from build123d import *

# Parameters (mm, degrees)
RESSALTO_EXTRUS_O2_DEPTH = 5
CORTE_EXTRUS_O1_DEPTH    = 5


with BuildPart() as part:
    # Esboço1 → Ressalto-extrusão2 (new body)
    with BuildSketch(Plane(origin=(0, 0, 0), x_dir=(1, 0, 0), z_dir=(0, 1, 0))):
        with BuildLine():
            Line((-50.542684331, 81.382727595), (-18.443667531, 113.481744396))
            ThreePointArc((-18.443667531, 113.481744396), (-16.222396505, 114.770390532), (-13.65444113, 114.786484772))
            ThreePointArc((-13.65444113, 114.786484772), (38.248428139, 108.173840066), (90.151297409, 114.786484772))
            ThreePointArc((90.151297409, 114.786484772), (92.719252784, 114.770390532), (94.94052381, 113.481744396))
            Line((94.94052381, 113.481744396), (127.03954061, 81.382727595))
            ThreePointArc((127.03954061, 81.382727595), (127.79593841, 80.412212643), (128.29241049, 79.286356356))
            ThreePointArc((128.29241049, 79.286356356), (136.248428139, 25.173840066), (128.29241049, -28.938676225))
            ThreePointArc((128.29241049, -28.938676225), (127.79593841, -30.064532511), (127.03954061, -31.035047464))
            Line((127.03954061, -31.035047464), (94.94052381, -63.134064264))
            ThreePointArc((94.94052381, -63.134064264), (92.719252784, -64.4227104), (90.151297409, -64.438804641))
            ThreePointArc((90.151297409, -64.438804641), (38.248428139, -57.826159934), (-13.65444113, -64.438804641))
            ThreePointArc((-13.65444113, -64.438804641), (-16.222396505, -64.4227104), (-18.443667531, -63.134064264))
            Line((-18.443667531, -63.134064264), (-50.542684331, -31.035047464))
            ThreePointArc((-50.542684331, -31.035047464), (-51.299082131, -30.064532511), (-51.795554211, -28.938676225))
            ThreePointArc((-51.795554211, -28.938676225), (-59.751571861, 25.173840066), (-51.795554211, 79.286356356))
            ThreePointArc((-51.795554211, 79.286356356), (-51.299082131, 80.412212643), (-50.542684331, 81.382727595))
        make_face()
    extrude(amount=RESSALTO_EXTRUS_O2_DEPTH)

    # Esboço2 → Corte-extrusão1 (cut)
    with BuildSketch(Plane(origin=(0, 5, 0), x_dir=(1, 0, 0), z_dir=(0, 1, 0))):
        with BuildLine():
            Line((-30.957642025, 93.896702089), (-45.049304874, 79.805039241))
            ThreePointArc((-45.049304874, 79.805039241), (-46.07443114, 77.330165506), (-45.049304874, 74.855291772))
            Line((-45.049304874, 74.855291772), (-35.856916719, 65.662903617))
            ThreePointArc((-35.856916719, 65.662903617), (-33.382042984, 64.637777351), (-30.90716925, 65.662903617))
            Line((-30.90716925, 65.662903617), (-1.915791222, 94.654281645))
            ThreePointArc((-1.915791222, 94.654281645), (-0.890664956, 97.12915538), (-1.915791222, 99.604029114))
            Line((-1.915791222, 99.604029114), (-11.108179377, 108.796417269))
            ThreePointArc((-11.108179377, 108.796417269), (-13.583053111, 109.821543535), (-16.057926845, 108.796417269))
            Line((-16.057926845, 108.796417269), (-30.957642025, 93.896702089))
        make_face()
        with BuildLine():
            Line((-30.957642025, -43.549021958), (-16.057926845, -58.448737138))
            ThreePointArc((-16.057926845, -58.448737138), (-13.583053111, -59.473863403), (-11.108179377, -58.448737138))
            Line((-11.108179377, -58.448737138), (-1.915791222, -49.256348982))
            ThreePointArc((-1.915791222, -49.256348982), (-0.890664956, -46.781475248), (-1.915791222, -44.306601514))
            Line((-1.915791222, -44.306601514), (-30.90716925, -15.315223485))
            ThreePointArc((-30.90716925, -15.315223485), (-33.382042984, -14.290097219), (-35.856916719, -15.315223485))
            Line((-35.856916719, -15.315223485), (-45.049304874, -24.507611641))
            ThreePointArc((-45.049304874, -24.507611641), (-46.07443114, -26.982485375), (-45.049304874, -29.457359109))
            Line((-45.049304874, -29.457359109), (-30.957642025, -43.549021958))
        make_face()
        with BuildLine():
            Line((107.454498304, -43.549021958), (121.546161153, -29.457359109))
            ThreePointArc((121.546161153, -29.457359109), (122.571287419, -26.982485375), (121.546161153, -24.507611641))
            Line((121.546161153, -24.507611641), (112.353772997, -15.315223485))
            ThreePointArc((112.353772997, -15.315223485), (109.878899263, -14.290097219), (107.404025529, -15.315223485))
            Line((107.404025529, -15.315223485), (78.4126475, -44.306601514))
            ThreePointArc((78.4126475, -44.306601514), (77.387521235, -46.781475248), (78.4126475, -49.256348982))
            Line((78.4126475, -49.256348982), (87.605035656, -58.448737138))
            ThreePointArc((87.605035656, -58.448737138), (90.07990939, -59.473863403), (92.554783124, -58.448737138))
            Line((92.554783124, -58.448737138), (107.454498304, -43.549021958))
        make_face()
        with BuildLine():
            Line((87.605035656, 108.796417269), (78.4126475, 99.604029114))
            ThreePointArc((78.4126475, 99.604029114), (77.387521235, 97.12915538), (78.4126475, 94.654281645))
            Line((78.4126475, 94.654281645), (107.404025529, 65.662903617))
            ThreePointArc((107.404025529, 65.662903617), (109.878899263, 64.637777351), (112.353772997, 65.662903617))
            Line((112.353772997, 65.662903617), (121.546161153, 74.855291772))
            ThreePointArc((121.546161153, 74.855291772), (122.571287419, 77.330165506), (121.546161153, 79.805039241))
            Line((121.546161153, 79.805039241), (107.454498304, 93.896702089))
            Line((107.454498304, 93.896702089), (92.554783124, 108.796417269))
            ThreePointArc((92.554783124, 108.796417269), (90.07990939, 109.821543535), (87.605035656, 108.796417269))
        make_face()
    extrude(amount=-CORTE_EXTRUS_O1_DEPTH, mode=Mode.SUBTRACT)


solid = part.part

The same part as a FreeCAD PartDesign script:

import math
import FreeCAD as App
import Part
import Sketcher

doc = App.newDocument("Part")
params = doc.addObject("Spreadsheet::Sheet", "Params")
for row, (alias, value) in enumerate([
    ("sketch1_radius", "5 mm"),
    ("sketch1_radius2", "188 mm"),
    ("sketch1_radius3", "207 mm"),
    ("pad1_length", "5 mm"),
    ("sketch2_radius", "3.5 mm"),
    ("sketch2_length", "13 mm"),
    ("sketch2_length2", "41 mm"),
    ("pocket1_length", "5 mm"),
], start=1):
    params.set(f"A{row}", alias)
    params.set(f"B{row}", "=" + value)
    params.setAlias(f"B{row}", alias)

body = doc.addObject("PartDesign::Body", "Body")

# Sketch on XZ plane
sketch1 = body.newObject("Sketcher::SketchObject", "Sketch")
sketch1.AttachmentSupport = (doc.getObject("XZ_Plane"), [""])
sketch1.MapMode = "FlatFace"
sketch1.addGeometry([
    Part.LineSegment(App.Vector(-18.4, -113.5, 0), App.Vector(-50.5, -81.4, 0)),  # 0
    Part.ArcOfCircle(Part.Circle(App.Vector(-47, -77.8, 0), App.Vector(0, 0, 1), 5), math.radians(-163), math.radians(-135)),  # 1
    Part.ArcOfCircle(Part.Circle(App.Vector(128.2, -25.2, 0), App.Vector(0, 0, 1), 188), math.radians(163), math.radians(197)),  # 2
    Part.ArcOfCircle(Part.Circle(App.Vector(-47, 27.5, 0), App.Vector(0, 0, 1), 5), math.radians(135), math.radians(163)),  # 3
    Part.LineSegment(App.Vector(-50.5, 31, 0), App.Vector(-18.4, 63.1, 0)),  # 4
    Part.ArcOfCircle(Part.Circle(App.Vector(-14.9, 59.6, 0), App.Vector(0, 0, 1), 5), math.radians(75), math.radians(135)),  # 5
    Part.ArcOfCircle(Part.Circle(App.Vector(38.2, 264.8, 0), App.Vector(0, 0, 1), 207), math.radians(-105), math.radians(-75)),  # 6
    Part.ArcOfCircle(Part.Circle(App.Vector(91.4, 59.6, 0), App.Vector(0, 0, 1), 5), math.radians(45), math.radians(105)),  # 7
    Part.LineSegment(App.Vector(94.9, 63.1, 0), App.Vector(127, 31, 0)),  # 8
    Part.ArcOfCircle(Part.Circle(App.Vector(123.5, 27.5, 0), App.Vector(0, 0, 1), 5), math.radians(17), math.radians(45)),  # 9
    Part.ArcOfCircle(Part.Circle(App.Vector(-51.8, -25.2, 0), App.Vector(0, 0, 1), 188), math.radians(-17), math.radians(17)),  # 10
    Part.ArcOfCircle(Part.Circle(App.Vector(123.5, -77.8, 0), App.Vector(0, 0, 1), 5), math.radians(-45), math.radians(-17)),  # 11
    Part.LineSegment(App.Vector(127, -81.4, 0), App.Vector(94.9, -113.5, 0)),  # 12
    Part.ArcOfCircle(Part.Circle(App.Vector(91.4, -109.9, 0), App.Vector(0, 0, 1), 5), math.radians(-105), math.radians(-45)),  # 13
    Part.ArcOfCircle(Part.Circle(App.Vector(38.2, -315.2, 0), App.Vector(0, 0, 1), 207), math.radians(75), math.radians(105)),  # 14
    Part.ArcOfCircle(Part.Circle(App.Vector(-14.9, -109.9, 0), App.Vector(0, 0, 1), 5), math.radians(-135), math.radians(-75)),  # 15
], False)
sketch1.addConstraint([
    Sketcher.Constraint("Tangent", 0, 2, 1, 2),
    Sketcher.Constraint("Tangent", 1, 1, 2, 2),
    Sketcher.Constraint("Tangent", 2, 1, 3, 2),
    Sketcher.Constraint("Tangent", 3, 1, 4, 1),
    Sketcher.Constraint("Tangent", 4, 2, 5, 2),
    Sketcher.Constraint("Tangent", 5, 1, 6, 1),
    Sketcher.Constraint("Tangent", 6, 2, 7, 2),
    Sketcher.Constraint("Tangent", 7, 1, 8, 1),
    Sketcher.Constraint("Tangent", 8, 2, 9, 2),
    Sketcher.Constraint("Tangent", 9, 1, 10, 2),
    Sketcher.Constraint("Tangent", 10, 1, 11, 2),
    Sketcher.Constraint("Tangent", 11, 1, 12, 1),
    Sketcher.Constraint("Tangent", 12, 2, 13, 2),
    Sketcher.Constraint("Tangent", 13, 1, 14, 1),
    Sketcher.Constraint("Tangent", 14, 2, 15, 2),
    Sketcher.Constraint("Tangent", 15, 1, 0, 1),
    Sketcher.Constraint("Equal", 1, 3),
    Sketcher.Constraint("Equal", 3, 5),
    Sketcher.Constraint("Equal", 5, 7),
    Sketcher.Constraint("Equal", 7, 9),
    Sketcher.Constraint("Equal", 2, 10),
    Sketcher.Constraint("Equal", 9, 11),
    Sketcher.Constraint("Equal", 11, 13),
    Sketcher.Constraint("Equal", 6, 14),
    Sketcher.Constraint("Equal", 13, 15),
    Sketcher.Constraint("Perpendicular", 0, 4),
    Sketcher.Constraint("Perpendicular", 4, 8),
    Sketcher.Constraint("Perpendicular", 8, 12),
    Sketcher.Constraint("Horizontal", 5, 3, 7, 3),
    Sketcher.Constraint("Horizontal", 3, 3, 9, 3),
    Sketcher.Constraint("Horizontal", 2, 3, 10, 3),
    Sketcher.Constraint("Horizontal", 1, 3, 11, 3),
    Sketcher.Constraint("Horizontal", 13, 3, 15, 3),
    Sketcher.Constraint("Horizontal", 4, 2, 7, 1),
    Sketcher.Constraint("Vertical", 1, 3, 3, 3),
    Sketcher.Constraint("Vertical", 7, 3, 13, 3),
    Sketcher.Constraint("Radius", 1, 5.0),
    Sketcher.Constraint("Radius", 2, 188.0),
    Sketcher.Constraint("Radius", 6, 207.0),
    Sketcher.Constraint("DistanceX", 6, 3, 2, 3, 90.0),
    Sketcher.Constraint("DistanceY", 2, 3, 6, 3, 290.0),
    Sketcher.Constraint("DistanceX", 1, 3, -1, 1, 47.00715),
    Sketcher.Constraint("DistanceX", -1, 1, 2, 3, 128.248428),
    Sketcher.Constraint("DistanceY", 2, 3, -1, 1, 25.17384),
])
sketch1.setExpression("Constraints[36]", "Params.sketch1_radius")
sketch1.setExpression("Constraints[37]", "Params.sketch1_radius2")
sketch1.setExpression("Constraints[38]", "Params.sketch1_radius3")
pad1 = body.newObject("PartDesign::Pad", "Pad")
pad1.Profile = sketch1
pad1.setExpression("Length", "Params.pad1_length")
pad1.Reversed = True

# Sketch on XZ plane
sketch2 = body.newObject("Sketcher::SketchObject", "Sketch001")
sketch2.AttachmentSupport = (doc.getObject("XZ_Plane"), [""])
sketch2.MapMode = "FlatFace"
sketch2.AttachmentOffset = App.Placement(App.Vector(0, 0, -5), App.Rotation())
sketch2.addGeometry([
    Part.LineSegment(App.Vector(-31, -93.9, 0), App.Vector(-45, -79.8, 0)),  # 0
    Part.ArcOfCircle(Part.Circle(App.Vector(-42.6, -77.3, 0), App.Vector(0, 0, 1), 3.5), math.radians(135), math.radians(225)),  # 1
    Part.LineSegment(App.Vector(-45, -74.9, 0), App.Vector(-35.9, -65.7, 0)),  # 2
    Part.ArcOfCircle(Part.Circle(App.Vector(-33.4, -68.1, 0), App.Vector(0, 0, 1), 3.5), math.radians(45), math.radians(135)),  # 3
    Part.LineSegment(App.Vector(-30.9, -65.7, 0), App.Vector(-1.9, -94.7, 0)),  # 4
    Part.ArcOfCircle(Part.Circle(App.Vector(-4.4, -97.1, 0), App.Vector(0, 0, 1), 3.5), math.radians(-45), math.radians(45)),  # 5
    Part.LineSegment(App.Vector(-1.9, -99.6, 0), App.Vector(-11.1, -108.8, 0)),  # 6
    Part.ArcOfCircle(Part.Circle(App.Vector(-13.6, -106.3, 0), App.Vector(0, 0, 1), 3.5), math.radians(-135), math.radians(-45)),  # 7
    Part.LineSegment(App.Vector(-16.1, -108.8, 0), App.Vector(-31, -93.9, 0)),  # 8
    Part.ArcOfCircle(Part.Circle(App.Vector(-13.6, 56, 0), App.Vector(0, 0, 1), 3.5), math.radians(45), math.radians(135)),  # 9
    Part.LineSegment(App.Vector(-11.1, 58.4, 0), App.Vector(-1.9, 49.3, 0)),  # 10
    Part.ArcOfCircle(Part.Circle(App.Vector(-4.4, 46.8, 0), App.Vector(0, 0, 1), 3.5), math.radians(-45), math.radians(45)),  # 11
    Part.LineSegment(App.Vector(-1.9, 44.3, 0), App.Vector(-30.9, 15.3, 0)),  # 12
    Part.ArcOfCircle(Part.Circle(App.Vector(-33.4, 17.8, 0), App.Vector(0, 0, 1), 3.5), math.radians(-135), math.radians(-45)),  # 13
    Part.LineSegment(App.Vector(-35.9, 15.3, 0), App.Vector(-45, 24.5, 0)),  # 14
    Part.ArcOfCircle(Part.Circle(App.Vector(-42.6, 27, 0), App.Vector(0, 0, 1), 3.5), math.radians(135), math.radians(225)),  # 15
    Part.LineSegment(App.Vector(-45, 29.5, 0), App.Vector(-16.1, 58.4, 0)),  # 16
    Part.ArcOfCircle(Part.Circle(App.Vector(119.1, 27, 0), App.Vector(0, 0, 1), 3.5), math.radians(-45), math.radians(45)),  # 17
    Part.LineSegment(App.Vector(121.5, 24.5, 0), App.Vector(112.4, 15.3, 0)),  # 18
    Part.ArcOfCircle(Part.Circle(App.Vector(109.9, 17.8, 0), App.Vector(0, 0, 1), 3.5), math.radians(-135), math.radians(-45)),  # 19
    Part.LineSegment(App.Vector(107.4, 15.3, 0), App.Vector(78.4, 44.3, 0)),  # 20
    Part.ArcOfCircle(Part.Circle(App.Vector(80.9, 46.8, 0), App.Vector(0, 0, 1), 3.5), math.radians(135), math.radians(225)),  # 21
    Part.LineSegment(App.Vector(78.4, 49.3, 0), App.Vector(87.6, 58.4, 0)),  # 22
    Part.ArcOfCircle(Part.Circle(App.Vector(90.1, 56, 0), App.Vector(0, 0, 1), 3.5), math.radians(45), math.radians(135)),  # 23
    Part.LineSegment(App.Vector(92.6, 58.4, 0), App.Vector(121.5, 29.5, 0)),  # 24
    Part.LineSegment(App.Vector(87.6, -108.8, 0), App.Vector(78.4, -99.6, 0)),  # 25
    Part.ArcOfCircle(Part.Circle(App.Vector(80.9, -97.1, 0), App.Vector(0, 0, 1), 3.5), math.radians(135), math.radians(225)),  # 26
    Part.LineSegment(App.Vector(78.4, -94.7, 0), App.Vector(107.4, -65.7, 0)),  # 27
    Part.ArcOfCircle(Part.Circle(App.Vector(109.9, -68.1, 0), App.Vector(0, 0, 1), 3.5), math.radians(45), math.radians(135)),  # 28
    Part.LineSegment(App.Vector(112.4, -65.7, 0), App.Vector(121.5, -74.9, 0)),  # 29
    Part.ArcOfCircle(Part.Circle(App.Vector(119.1, -77.3, 0), App.Vector(0, 0, 1), 3.5), math.radians(-45), math.radians(45)),  # 30
    Part.LineSegment(App.Vector(121.5, -79.8, 0), App.Vector(107.5, -93.9, 0)),  # 31
    Part.LineSegment(App.Vector(107.5, -93.9, 0), App.Vector(92.6, -108.8, 0)),  # 32
    Part.ArcOfCircle(Part.Circle(App.Vector(90.1, -106.3, 0), App.Vector(0, 0, 1), 3.5), math.radians(-135), math.radians(-45)),  # 33
], False)
sketch2.addConstraint([
    Sketcher.Constraint("Tangent", 0, 2, 1, 2),
    Sketcher.Constraint("Tangent", 1, 1, 2, 1),
    Sketcher.Constraint("Tangent", 2, 2, 3, 2),
    Sketcher.Constraint("Tangent", 3, 1, 4, 1),
    Sketcher.Constraint("Tangent", 4, 2, 5, 2),
    Sketcher.Constraint("Tangent", 5, 1, 6, 1),
    Sketcher.Constraint("Tangent", 6, 2, 7, 2),
    Sketcher.Constraint("Tangent", 7, 1, 8, 1),
    Sketcher.Constraint("Coincident", 8, 2, 0, 1),
    Sketcher.Constraint("Tangent", 9, 1, 10, 1),
    Sketcher.Constraint("Tangent", 10, 2, 11, 2),
    Sketcher.Constraint("Tangent", 11, 1, 12, 1),
    Sketcher.Constraint("Tangent", 12, 2, 13, 2),
    Sketcher.Constraint("Tangent", 13, 1, 14, 1),
    Sketcher.Constraint("Tangent", 14, 2, 15, 2),
    Sketcher.Constraint("Tangent", 15, 1, 16, 1),
    Sketcher.Constraint("Tangent", 16, 2, 9, 2),
    Sketcher.Constraint("Tangent", 17, 1, 18, 1),
    Sketcher.Constraint("Tangent", 18, 2, 19, 2),
    Sketcher.Constraint("Tangent", 19, 1, 20, 1),
    Sketcher.Constraint("Tangent", 20, 2, 21, 2),
    Sketcher.Constraint("Tangent", 21, 1, 22, 1),
    Sketcher.Constraint("Tangent", 22, 2, 23, 2),
    Sketcher.Constraint("Tangent", 23, 1, 24, 1),
    Sketcher.Constraint("Tangent", 24, 2, 17, 2),
    Sketcher.Constraint("Tangent", 25, 2, 26, 2),
    Sketcher.Constraint("Tangent", 26, 1, 27, 1),
    Sketcher.Constraint("Tangent", 27, 2, 28, 2),
    Sketcher.Constraint("Tangent", 28, 1, 29, 1),
    Sketcher.Constraint("Tangent", 29, 2, 30, 2),
    Sketcher.Constraint("Tangent", 30, 1, 31, 1),
    Sketcher.Constraint("Coincident", 31, 2, 32, 1),
    Sketcher.Constraint("Tangent", 32, 2, 33, 2),
    Sketcher.Constraint("Tangent", 33, 1, 25, 1),
    Sketcher.Constraint("Equal", 1, 3),
    Sketcher.Constraint("Equal", 3, 5),
    Sketcher.Constraint("Equal", 5, 7),
    Sketcher.Constraint("Equal", 7, 9),
    Sketcher.Constraint("Equal", 9, 11),
    Sketcher.Constraint("Equal", 11, 13),
    Sketcher.Constraint("Equal", 13, 15),
    Sketcher.Constraint("Equal", 15, 17),
    Sketcher.Constraint("Equal", 17, 19),
    Sketcher.Constraint("Equal", 19, 21),
    Sketcher.Constraint("Equal", 21, 23),
    Sketcher.Constraint("Equal", 23, 26),
    Sketcher.Constraint("Equal", 26, 28),
    Sketcher.Constraint("Equal", 28, 30),
    Sketcher.Constraint("Equal", 30, 33),
    Sketcher.Constraint("Perpendicular", 0, 2),
    Sketcher.Constraint("Perpendicular", 2, 4),
    Sketcher.Constraint("Perpendicular", 4, 6),
    Sketcher.Constraint("Perpendicular", 6, 8),
    Sketcher.Constraint("Parallel", 8, 10),
    Sketcher.Constraint("Perpendicular", 10, 12),
    Sketcher.Constraint("Perpendicular", 12, 14),
    Sketcher.Constraint("Perpendicular", 14, 16),
    Sketcher.Constraint("Parallel", 16, 18),
    Sketcher.Constraint("Perpendicular", 18, 20),
    Sketcher.Constraint("Perpendicular", 20, 22),
    Sketcher.Constraint("Perpendicular", 22, 24),
    Sketcher.Constraint("Parallel", 24, 25),
    Sketcher.Constraint("Perpendicular", 25, 27),
    Sketcher.Constraint("Perpendicular", 27, 29),
    Sketcher.Constraint("Perpendicular", 29, 31),
    Sketcher.Constraint("Parallel", 31, 32),
    Sketcher.Constraint("Horizontal", 15, 3, 17, 3),
    Sketcher.Constraint("Horizontal", 13, 3, 19, 3),
    Sketcher.Constraint("Horizontal", 11, 3, 21, 3),
    Sketcher.Constraint("Horizontal", 5, 3, 26, 3),
    Sketcher.Constraint("Horizontal", 3, 3, 28, 3),
    Sketcher.Constraint("Horizontal", 1, 3, 30, 3),
    Sketcher.Constraint("Horizontal", 2, 2, 3, 1),
    Sketcher.Constraint("Horizontal", 8, 2, 31, 2),
    Sketcher.Constraint("Vertical", 7, 3, 9, 3),
    Sketcher.Constraint("Vertical", 5, 3, 11, 3),
    Sketcher.Constraint("Vertical", 3, 3, 13, 3),
    Sketcher.Constraint("Vertical", 21, 3, 26, 3),
    Sketcher.Constraint("Radius", 1, 3.5),
    Sketcher.Constraint("Distance", 2, 13.0),
    Sketcher.Constraint("Distance", 4, 41.0),
    Sketcher.Constraint("DistanceX", -1, 1, 19, 3, 109.878899),
    Sketcher.Constraint("DistanceY", -1, 1, 11, 1, 44.306602),
    Sketcher.Constraint("DistanceX", -1, 1, 31, 2, 107.454498),
    Sketcher.Constraint("DistanceX", 9, 1, 21, 3, 91.995701),
    Sketcher.Constraint("DistanceY", 0, 2, -1, 1, 79.805039),
])
sketch2.setExpression("Constraints[78]", "Params.sketch2_radius")
sketch2.setExpression("Constraints[79]", "Params.sketch2_length")
sketch2.setExpression("Constraints[80]", "Params.sketch2_length2")
pocket1 = body.newObject("PartDesign::Pocket", "Pocket")
pocket1.Profile = sketch2
pocket1.setExpression("Length", "Params.pocket1_length")
pocket1.Reversed = True

doc.recompute()
